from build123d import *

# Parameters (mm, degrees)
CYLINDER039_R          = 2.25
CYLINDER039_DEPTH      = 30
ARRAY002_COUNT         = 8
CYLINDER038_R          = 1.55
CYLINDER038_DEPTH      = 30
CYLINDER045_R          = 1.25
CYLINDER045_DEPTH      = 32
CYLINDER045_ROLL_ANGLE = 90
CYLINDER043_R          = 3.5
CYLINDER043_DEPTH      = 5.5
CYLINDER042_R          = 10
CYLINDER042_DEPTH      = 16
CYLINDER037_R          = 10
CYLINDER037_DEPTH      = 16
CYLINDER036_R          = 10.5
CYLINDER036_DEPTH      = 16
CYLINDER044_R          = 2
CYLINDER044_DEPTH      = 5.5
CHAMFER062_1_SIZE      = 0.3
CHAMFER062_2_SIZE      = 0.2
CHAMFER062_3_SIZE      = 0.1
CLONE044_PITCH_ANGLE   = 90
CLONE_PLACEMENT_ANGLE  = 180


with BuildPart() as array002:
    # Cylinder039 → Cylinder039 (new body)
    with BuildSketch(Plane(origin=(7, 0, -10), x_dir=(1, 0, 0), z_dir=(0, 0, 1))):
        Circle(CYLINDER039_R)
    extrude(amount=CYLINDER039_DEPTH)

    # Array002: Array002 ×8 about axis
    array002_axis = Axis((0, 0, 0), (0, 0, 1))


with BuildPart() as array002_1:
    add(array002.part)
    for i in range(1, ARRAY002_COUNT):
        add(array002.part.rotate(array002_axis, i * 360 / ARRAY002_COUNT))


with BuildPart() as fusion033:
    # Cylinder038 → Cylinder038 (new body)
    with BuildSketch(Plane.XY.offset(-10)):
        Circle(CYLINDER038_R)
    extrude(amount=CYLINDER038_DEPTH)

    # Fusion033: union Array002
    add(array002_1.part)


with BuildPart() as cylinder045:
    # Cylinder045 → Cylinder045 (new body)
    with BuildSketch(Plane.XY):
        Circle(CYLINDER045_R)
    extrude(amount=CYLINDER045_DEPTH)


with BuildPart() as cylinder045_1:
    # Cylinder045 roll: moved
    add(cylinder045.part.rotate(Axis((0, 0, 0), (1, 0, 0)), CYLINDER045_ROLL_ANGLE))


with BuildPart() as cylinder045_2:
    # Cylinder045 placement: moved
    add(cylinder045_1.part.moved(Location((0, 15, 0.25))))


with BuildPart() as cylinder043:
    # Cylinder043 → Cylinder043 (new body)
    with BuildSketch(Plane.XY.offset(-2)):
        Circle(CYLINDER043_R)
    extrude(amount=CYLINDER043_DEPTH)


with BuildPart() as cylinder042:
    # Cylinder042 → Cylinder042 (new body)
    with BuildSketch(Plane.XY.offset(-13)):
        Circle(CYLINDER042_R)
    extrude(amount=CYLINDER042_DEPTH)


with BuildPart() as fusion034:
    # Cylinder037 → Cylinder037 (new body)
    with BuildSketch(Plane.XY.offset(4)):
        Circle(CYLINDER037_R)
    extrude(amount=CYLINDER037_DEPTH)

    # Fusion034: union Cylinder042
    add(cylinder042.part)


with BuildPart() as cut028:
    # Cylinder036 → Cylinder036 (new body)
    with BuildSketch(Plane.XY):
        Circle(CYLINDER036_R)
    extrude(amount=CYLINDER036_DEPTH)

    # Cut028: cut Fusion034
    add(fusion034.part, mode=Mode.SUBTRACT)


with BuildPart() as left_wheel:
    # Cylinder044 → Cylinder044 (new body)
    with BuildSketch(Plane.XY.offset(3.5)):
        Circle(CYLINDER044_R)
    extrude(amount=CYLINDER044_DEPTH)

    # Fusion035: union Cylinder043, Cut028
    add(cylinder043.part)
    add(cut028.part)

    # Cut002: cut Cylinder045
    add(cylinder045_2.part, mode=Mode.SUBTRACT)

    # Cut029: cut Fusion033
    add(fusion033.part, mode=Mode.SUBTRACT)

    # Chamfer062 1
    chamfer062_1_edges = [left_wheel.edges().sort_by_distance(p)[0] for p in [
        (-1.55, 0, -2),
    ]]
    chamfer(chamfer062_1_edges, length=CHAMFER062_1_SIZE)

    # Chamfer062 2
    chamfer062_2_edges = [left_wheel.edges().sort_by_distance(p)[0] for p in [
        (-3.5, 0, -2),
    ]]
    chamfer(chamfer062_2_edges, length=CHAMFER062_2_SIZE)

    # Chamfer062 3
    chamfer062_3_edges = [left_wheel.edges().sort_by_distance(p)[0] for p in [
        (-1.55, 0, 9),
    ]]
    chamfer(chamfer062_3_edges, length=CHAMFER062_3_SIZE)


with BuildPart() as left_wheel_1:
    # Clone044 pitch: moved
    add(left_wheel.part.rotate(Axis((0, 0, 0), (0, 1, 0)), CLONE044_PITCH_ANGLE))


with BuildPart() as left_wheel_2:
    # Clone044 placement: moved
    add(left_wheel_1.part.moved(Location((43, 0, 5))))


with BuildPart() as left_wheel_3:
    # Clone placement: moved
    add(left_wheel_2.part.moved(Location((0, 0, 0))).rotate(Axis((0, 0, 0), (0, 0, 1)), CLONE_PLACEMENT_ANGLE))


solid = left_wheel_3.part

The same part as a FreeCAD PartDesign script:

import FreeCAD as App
import Part
import Sketcher

V = App.Vector


def edges_at(feature, points):
    """Names of the edges that pass closest to the given points."""
    edges = feature.Shape.Edges
    near = lambda p: min(range(len(edges)), key=lambda i: edges[i].distToShape(Part.Vertex(*p))[0])
    return sorted({f"Edge{near(p) + 1}" for p in points})

doc = App.newDocument("Part")
body = doc.addObject("PartDesign::Body", "Body")

sketch1 = body.newObject("Sketcher::SketchObject", "Sketch")
sketch1.AttachmentSupport = (doc.getObject("XY_Plane"), [""])
sketch1.MapMode = "FlatFace"
sketch1.AttachmentOffset = App.Placement(V(0, 0, -10), App.Rotation())
sketch1.addGeometry(Part.Circle(V(7, 0, 0), V(0, 0, 1), 2.2), False)
sketch1.addConstraint([
    Sketcher.Constraint("PointOnObject", 0, 3, -1),
    Sketcher.Constraint("Diameter", 0, 4.5),
    Sketcher.Constraint("DistanceX", -1, 1, 0, 3, 7.0),
])
pad1 = body.newObject("PartDesign::Pad", "Pad")
pad1.Profile = sketch1
pad1.Length = 30
body2 = doc.addObject("PartDesign::Body", "Body001")
body2.AllowCompound = True
doc.recompute()

body2.BaseFeature = body
doc.recompute()

body3 = doc.addObject("PartDesign::Body", "Body002")
body3.BaseFeature = body
body3.Placement = App.Placement(V(0, 0, 0), App.Rotation(V(0, 0, 1), 45))
boolean = body2.newObject("PartDesign::Boolean", "Boolean")
boolean.Type = "Fuse"
boolean.addObjects([body3])
doc.recompute()

body4 = doc.addObject("PartDesign::Body", "Body003")
body4.BaseFeature = body
body4.Placement = App.Placement(V(0, 0, 0), App.Rotation(V(0, 0, 1), 90))
boolean2 = body2.newObject("PartDesign::Boolean", "Boolean001")
boolean2.Type = "Fuse"
boolean2.addObjects([body4])
doc.recompute()

body5 = doc.addObject("PartDesign::Body", "Body004")
body5.BaseFeature = body
body5.Placement = App.Placement(V(0, 0, 0), App.Rotation(V(0, 0, 1), 135))
boolean3 = body2.newObject("PartDesign::Boolean", "Boolean002")
boolean3.Type = "Fuse"
boolean3.addObjects([body5])
doc.recompute()

body6 = doc.addObject("PartDesign::Body", "Body005")
body6.BaseFeature = body
body6.Placement = App.Placement(V(0, 0, 0), App.Rotation(V(0, 0, 1), 180))
boolean4 = body2.newObject("PartDesign::Boolean", "Boolean003")
boolean4.Type = "Fuse"
boolean4.addObjects([body6])
doc.recompute()

body7 = doc.addObject("PartDesign::Body", "Body006")
body7.BaseFeature = body
body7.Placement = App.Placement(V(0, 0, 0), App.Rotation(V(0, 0, 1), 225))
boolean5 = body2.newObject("PartDesign::Boolean", "Boolean004")
boolean5.Type = "Fuse"
boolean5.addObjects([body7])
doc.recompute()

body8 = doc.addObject("PartDesign::Body", "Body007")
body8.BaseFeature = body
body8.Placement = App.Placement(V(0, 0, 0), App.Rotation(V(0, 0, 1), 270))
boolean6 = body2.newObject("PartDesign::Boolean", "Boolean005")
boolean6.Type = "Fuse"
boolean6.addObjects([body8])
doc.recompute()

body.Placement = App.Placement(V(0, 0, 0), App.Rotation(V(0, 0, 1), 315))
boolean7 = body2.newObject("PartDesign::Boolean", "Boolean006")
boolean7.Type = "Fuse"
boolean7.addObjects([body])
body9 = doc.addObject("PartDesign::Body", "Body008")
body9.AllowCompound = True

sketch2 = body9.newObject("Sketcher::SketchObject", "Sketch001")
sketch2.AttachmentSupport = (doc.getObject("XY_Plane008"), [""])
sketch2.MapMode = "FlatFace"
sketch2.AttachmentOffset = App.Placement(V(0, 0, -10), App.Rotation())
sketch2.addGeometry(Part.Circle(V(0, 0, 0), V(0, 0, 1), 1.6), False)
sketch2.addConstraint([
    Sketcher.Constraint("Coincident", 0, 3, -1, 1),
    Sketcher.Constraint("Diameter", 0, 3.1),
])
pad2 = body9.newObject("PartDesign::Pad", "Pad001")
pad2.Profile = sketch2
pad2.Length = 30
doc.recompute()

boolean8 = body9.newObject("PartDesign::Boolean", "Boolean007")
boolean8.Type = "Fuse"
boolean8.addObjects([body2])
body10 = doc.addObject("PartDesign::Body", "Body009")

sketch3 = body10.newObject("Sketcher::SketchObject", "Sketch002")
sketch3.AttachmentSupport = (doc.getObject("XY_Plane009"), [""])
sketch3.MapMode = "FlatFace"
sketch3.addGeometry(Part.Circle(V(0, 0, 0), V(0, 0, 1), 1.2), False)
sketch3.addConstraint([
    Sketcher.Constraint("Coincident", 0, 3, -1, 1),
    Sketcher.Constraint("Diameter", 0, 2.5),
])
pad3 = body10.newObject("PartDesign::Pad", "Pad002")
pad3.Profile = sketch3
pad3.Length = 32
body11 = doc.addObject("PartDesign::Body", "Body010")
doc.recompute()

body10.Placement = App.Placement(V(0, 0, 0), App.Rotation(V(1, 0, 0), 90))
boolean9 = body11.newObject("PartDesign::Boolean", "Boolean008")
boolean9.Type = "Fuse"
boolean9.addObjects([body10])
body12 = doc.addObject("PartDesign::Body", "Body011")
doc.recompute()

body11.Placement = App.Placement(V(0, 15, 0.25), App.Rotation(V(0, 0, 1), 0))
boolean10 = body12.newObject("PartDesign::Boolean", "Boolean009")
boolean10.Type = "Fuse"
boolean10.addObjects([body11])
body13 = doc.addObject("PartDesign::Body", "Body012")

sketch4 = body13.newObject("Sketcher::SketchObject", "Sketch003")
sketch4.AttachmentSupport = (doc.getObject("XY_Plane012"), [""])
sketch4.MapMode = "FlatFace"
sketch4.AttachmentOffset = App.Placement(V(0, 0, -2), App.Rotation())
sketch4.addGeometry(Part.Circle(V(0, 0, 0), V(0, 0, 1), 3.5), False)
sketch4.addConstraint([
    Sketcher.Constraint("Coincident", 0, 3, -1, 1),
    Sketcher.Constraint("Diameter", 0, 7.0),
])
pad4 = body13.newObject("PartDesign::Pad", "Pad003")
pad4.Profile = sketch4
pad4.Length = 5.5
body14 = doc.addObject("PartDesign::Body", "Body013")

sketch5 = body14.newObject("Sketcher::SketchObject", "Sketch004")
sketch5.AttachmentSupport = (doc.getObject("XY_Plane013"), [""])
sketch5.MapMode = "FlatFace"
sketch5.AttachmentOffset = App.Placement(V(0, 0, -13), App.Rotation())
sketch5.addGeometry(Part.Circle(V(0, 0, 0), V(0, 0, 1), 10), False)
sketch5.addConstraint([
    Sketcher.Constraint("Coincident", 0, 3, -1, 1),
    Sketcher.Constraint("Diameter", 0, 20.0),
])
pad5 = body14.newObject("PartDesign::Pad", "Pad004")
pad5.Profile = sketch5
pad5.Length = 16
body15 = doc.addObject("PartDesign::Body", "Body014")
body15.AllowCompound = True

sketch6 = body15.newObject("Sketcher::SketchObject", "Sketch005")
sketch6.AttachmentSupport = (doc.getObject("XY_Plane014"), [""])
sketch6.MapMode = "FlatFace"
sketch6.AttachmentOffset = App.Placement(V(0, 0, 4), App.Rotation())
sketch6.addGeometry(Part.Circle(V(0, 0, 0), V(0, 0, 1), 10), False)
sketch6.addConstraint([
    Sketcher.Constraint("Coincident", 0, 3, -1, 1),
    Sketcher.Constraint("Diameter", 0, 20.0),
])
pad6 = body15.newObject("PartDesign::Pad", "Pad005")
pad6.Profile = sketch6
pad6.Length = 16
doc.recompute()

boolean11 = body15.newObject("PartDesign::Boolean", "Boolean010")
boolean11.Type = "Fuse"
boolean11.addObjects([body14])
body16 = doc.addObject("PartDesign::Body", "Body015")

sketch7 = body16.newObject("Sketcher::SketchObject", "Sketch006")
sketch7.AttachmentSupport = (doc.getObject("XY_Plane015"), [""])
sketch7.MapMode = "FlatFace"
sketch7.addGeometry(Part.Circle(V(0, 0, 0), V(0, 0, 1), 10), False)
sketch7.addConstraint([
    Sketcher.Constraint("Coincident", 0, 3, -1, 1),
    Sketcher.Constraint("Diameter", 0, 21.0),
])
pad7 = body16.newObject("PartDesign::Pad", "Pad006")
pad7.Profile = sketch7
pad7.Length = 16
doc.recompute()

boolean12 = body16.newObject("PartDesign::Boolean", "Boolean011")
boolean12.Type = "Cut"
boolean12.addObjects([body15])
body17 = doc.addObject("PartDesign::Body", "Body016")

sketch8 = body17.newObject("Sketcher::SketchObject", "Sketch007")
sketch8.AttachmentSupport = (doc.getObject("XY_Plane016"), [""])
sketch8.MapMode = "FlatFace"
sketch8.AttachmentOffset = App.Placement(V(0, 0, 3.5), App.Rotation())
sketch8.addGeometry(Part.Circle(V(0, 0, 0), V(0, 0, 1), 2), False)
sketch8.addConstraint([
    Sketcher.Constraint("Coincident", 0, 3, -1, 1),
    Sketcher.Constraint("Diameter", 0, 4.0),
])
pad8 = body17.newObject("PartDesign::Pad", "Pad007")
pad8.Profile = sketch8
pad8.Length = 5.5
doc.recompute()

boolean13 = body17.newObject("PartDesign::Boolean", "Boolean012")
boolean13.Type = "Fuse"
boolean13.addObjects([body13])
doc.recompute()

boolean14 = body17.newObject("PartDesign::Boolean", "Boolean013")
boolean14.Type = "Fuse"
boolean14.addObjects([body16])
doc.recompute()

boolean15 = body17.newObject("PartDesign::Boolean", "Boolean014")
boolean15.Type = "Cut"
boolean15.addObjects([body12])
doc.recompute()

boolean16 = body17.newObject("PartDesign::Boolean", "Boolean015")
boolean16.Type = "Cut"
boolean16.addObjects([body9])
doc.recompute()

chamfer = body17.newObject("PartDesign::Chamfer", "Chamfer")
chamfer.Base = (boolean16, edges_at(boolean16, [(-1.55, 0, -2)]))
chamfer.Size = 0.3
doc.recompute()

chamfer2 = body17.newObject("PartDesign::Chamfer", "Chamfer001")
chamfer2.Base = (chamfer, edges_at(chamfer, [(-3.5, 0, -2)]))
chamfer2.Size = 0.2
doc.recompute()

chamfer3 = body17.newObject("PartDesign::Chamfer", "Chamfer002")
chamfer3.Base = (chamfer2, edges_at(chamfer2, [(-1.55, 0, 9)]))
chamfer3.Size = 0.1
body18 = doc.addObject("PartDesign::Body", "Body017")
doc.recompute()

body17.Placement = App.Placement(V(0, 0, 0), App.Rotation(V(0, 1, 0), 90))
boolean17 = body18.newObject("PartDesign::Boolean", "Boolean016")
boolean17.Type = "Fuse"
boolean17.addObjects([body17])
body19 = doc.addObject("PartDesign::Body", "Body018")
doc.recompute()

body18.Placement = App.Placement(V(43, 0, 5), App.Rotation(V(0, 0, 1), 0))
boolean18 = body19.newObject("PartDesign::Boolean", "Boolean017")
boolean18.Type = "Fuse"
boolean18.addObjects([body18])
body20 = doc.addObject("PartDesign::Body", "Body019")
doc.recompute()

body19.Placement = App.Placement(V(0, 0, 0), App.Rotation(V(0, 0, 1), 180))
boolean19 = body20.newObject("PartDesign::Boolean", "Boolean018")
boolean19.Type = "Fuse"
boolean19.addObjects([body19])

doc.recompute()
